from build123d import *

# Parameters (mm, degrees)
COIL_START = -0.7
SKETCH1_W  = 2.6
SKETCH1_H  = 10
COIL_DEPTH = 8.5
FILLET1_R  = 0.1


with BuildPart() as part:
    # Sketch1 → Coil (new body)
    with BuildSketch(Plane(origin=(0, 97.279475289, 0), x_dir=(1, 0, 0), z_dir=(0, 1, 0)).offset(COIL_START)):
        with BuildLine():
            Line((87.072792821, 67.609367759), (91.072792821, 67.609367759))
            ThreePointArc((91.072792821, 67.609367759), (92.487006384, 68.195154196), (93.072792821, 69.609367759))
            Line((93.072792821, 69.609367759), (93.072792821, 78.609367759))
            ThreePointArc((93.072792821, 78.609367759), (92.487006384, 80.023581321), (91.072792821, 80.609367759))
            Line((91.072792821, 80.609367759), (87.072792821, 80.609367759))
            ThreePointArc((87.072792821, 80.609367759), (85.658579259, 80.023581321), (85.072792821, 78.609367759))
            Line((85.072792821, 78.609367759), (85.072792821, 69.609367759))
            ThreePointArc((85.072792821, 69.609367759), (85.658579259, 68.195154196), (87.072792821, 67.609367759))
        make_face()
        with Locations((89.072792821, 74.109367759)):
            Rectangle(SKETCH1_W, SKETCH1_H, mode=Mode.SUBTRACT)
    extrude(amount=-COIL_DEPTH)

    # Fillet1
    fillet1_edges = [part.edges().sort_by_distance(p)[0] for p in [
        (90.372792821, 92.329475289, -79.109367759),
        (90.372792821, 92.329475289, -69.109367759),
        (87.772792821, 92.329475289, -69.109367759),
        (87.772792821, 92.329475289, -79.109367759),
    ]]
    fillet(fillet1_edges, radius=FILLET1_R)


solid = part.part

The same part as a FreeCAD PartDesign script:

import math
import FreeCAD as App
import Part
import Sketcher
from FreeCAD import Vector


def edges_at(feature, points):
    """Names of the edges that pass closest to the given points."""
    edges = feature.Shape.Edges
    near = lambda p: min(range(len(edges)), key=lambda i: edges[i].distToShape(Part.Vertex(*p))[0])
    return sorted({f"Edge{near(p) + 1}" for p in points})

doc = App.newDocument("Part")
body = doc.addObject("PartDesign::Body", "Body")

# Sketch on XZ plane
sketch1 = doc.addObject("Sketcher::SketchObject", "Sketch")
body.addObject(sketch1)
sketch1.AttachmentSupport = (doc.XZ_Plane, [""])
sketch1.MapMode = "FlatFace"
sketch1.AttachmentOffset = App.Placement(Vector(0, 0, -96.579475), App.Rotation())
sketch1.addGeometry(Part.LineSegment(Vector(87.1, -67.6, 0), Vector(91.1, -67.6, 0)), False)
sketch1.addGeometry(Part.ArcOfCircle(Part.Circle(Vector(91.1, -69.6, 0), Vector(0, 0, 1), 2), math.radians(0), math.radians(90)), False)
sketch1.addGeometry(Part.LineSegment(Vector(93.1, -69.6, 0), Vector(93.1, -78.6, 0)), False)
sketch1.addGeometry(Part.ArcOfCircle(Part.Circle(Vector(91.1, -78.6, 0), Vector(0, 0, 1), 2), math.radians(-90), math.radians(0)), False)
sketch1.addGeometry(Part.LineSegment(Vector(91.1, -80.6, 0), Vector(87.1, -80.6, 0)), False)
sketch1.addGeometry(Part.ArcOfCircle(Part.Circle(Vector(87.1, -78.6, 0), Vector(0, 0, 1), 2), math.radians(-180), math.radians(-90)), False)
sketch1.addGeometry(Part.LineSegment(Vector(85.1, -78.6, 0), Vector(85.1, -69.6, 0)), False)
sketch1.addGeometry(Part.ArcOfCircle(Part.Circle(Vector(87.1, -69.6, 0), Vector(0, 0, 1), 2), math.radians(90), math.radians(180)), False)
sketch1.addGeometry(Part.LineSegment(Vector(90.4, -69.1, 0), Vector(87.8, -69.1, 0)), False)
sketch1.addGeometry(Part.LineSegment(Vector(87.8, -69.1, 0), Vector(87.8, -79.1, 0)), False)
sketch1.addGeometry(Part.LineSegment(Vector(87.8, -79.1, 0), Vector(90.4, -79.1, 0)), False)
sketch1.addGeometry(Part.LineSegment(Vector(90.4, -79.1, 0), Vector(90.4, -69.1, 0)), False)
sketch1.addConstraint(Sketcher.Constraint("Tangent", 0, 2, 1, 2))
sketch1.addConstraint(Sketcher.Constraint("Tangent", 1, 1, 2, 1))
sketch1.addConstraint(Sketcher.Constraint("Tangent", 2, 2, 3, 2))
sketch1.addConstraint(Sketcher.Constraint("Tangent", 3, 1, 4, 1))
sketch1.addConstraint(Sketcher.Constraint("Tangent", 4, 2, 5, 2))
sketch1.addConstraint(Sketcher.Constraint("Tangent", 5, 1, 6, 1))
sketch1.addConstraint(Sketcher.Constraint("Tangent", 6, 2, 7, 2))
sketch1.addConstraint(Sketcher.Constraint("Tangent", 7, 1, 0, 1))
sketch1.addConstraint(Sketcher.Constraint("Coincident", 8, 2, 9, 1))
sketch1.addConstraint(Sketcher.Constraint("Coincident", 9, 2, 10, 1))
sketch1.addConstraint(Sketcher.Constraint("Coincident", 10, 2, 11, 1))
sketch1.addConstraint(Sketcher.Constraint("Coincident", 11, 2, 8, 1))
sketch1.addConstraint(Sketcher.Constraint("Horizontal", 0))
sketch1.addConstraint(Sketcher.Constraint("Vertical", 2))
sketch1.addConstraint(Sketcher.Constraint("Horizontal", 4))
sketch1.addConstraint(Sketcher.Constraint("Vertical", 6))
sketch1.addConstraint(Sketcher.Constraint("Horizontal", 8))
sketch1.addConstraint(Sketcher.Constraint("Vertical", 9))
sketch1.addConstraint(Sketcher.Constraint("Horizontal", 10))
sketch1.addConstraint(Sketcher.Constraint("Vertical", 11))
sketch1.addConstraint(Sketcher.Constraint("Equal", 1, 3))
sketch1.addConstraint(Sketcher.Constraint("Equal", 3, 5))
sketch1.addConstraint(Sketcher.Constraint("Equal", 5, 7))
sketch1.addConstraint(Sketcher.Constraint("Radius", 1, 2.0))
sketch1.addConstraint(Sketcher.Constraint("DistanceX", 0, 1, 0, 2, 4.0))
sketch1.addConstraint(Sketcher.Constraint("DistanceY", 2, 2, 2, 1, 9.0))
sketch1.addConstraint(Sketcher.Constraint("DistanceY", 9, 2, 9, 1, 10.0))
sketch1.addConstraint(Sketcher.Constraint("DistanceX", 8, 2, 8, 1, 2.6))
sketch1.addConstraint(Sketcher.Constraint("DistanceX", 7, 3, 8, 2, 0.7))
sketch1.addConstraint(Sketcher.Constraint("DistanceY", 7, 3, 8, 2, 0.5))
sketch1.addConstraint(Sketcher.Constraint("DistanceX", -1, 1, 1, 3, 91.072793))
sketch1.addConstraint(Sketcher.Constraint("DistanceY", 1, 3, -1, 1, 69.609368))
pad1 = doc.addObject("PartDesign::Pad", "Pad")
body.addObject(pad1)
pad1.Profile = sketch1
pad1.Length = 8.5
doc.recompute()

fillet = doc.addObject("PartDesign::Fillet", "Fillet")
body.addObject(fillet)
fillet.Base = (pad1, edges_at(pad1, [
    (90.373, 92.329, -79.109),
    (90.373, 92.329, -69.109),
    (87.773, 92.329, -69.109),
    (87.773, 92.329, -79.109),
]))
fillet.Radius = 0.1

doc.recompute()
